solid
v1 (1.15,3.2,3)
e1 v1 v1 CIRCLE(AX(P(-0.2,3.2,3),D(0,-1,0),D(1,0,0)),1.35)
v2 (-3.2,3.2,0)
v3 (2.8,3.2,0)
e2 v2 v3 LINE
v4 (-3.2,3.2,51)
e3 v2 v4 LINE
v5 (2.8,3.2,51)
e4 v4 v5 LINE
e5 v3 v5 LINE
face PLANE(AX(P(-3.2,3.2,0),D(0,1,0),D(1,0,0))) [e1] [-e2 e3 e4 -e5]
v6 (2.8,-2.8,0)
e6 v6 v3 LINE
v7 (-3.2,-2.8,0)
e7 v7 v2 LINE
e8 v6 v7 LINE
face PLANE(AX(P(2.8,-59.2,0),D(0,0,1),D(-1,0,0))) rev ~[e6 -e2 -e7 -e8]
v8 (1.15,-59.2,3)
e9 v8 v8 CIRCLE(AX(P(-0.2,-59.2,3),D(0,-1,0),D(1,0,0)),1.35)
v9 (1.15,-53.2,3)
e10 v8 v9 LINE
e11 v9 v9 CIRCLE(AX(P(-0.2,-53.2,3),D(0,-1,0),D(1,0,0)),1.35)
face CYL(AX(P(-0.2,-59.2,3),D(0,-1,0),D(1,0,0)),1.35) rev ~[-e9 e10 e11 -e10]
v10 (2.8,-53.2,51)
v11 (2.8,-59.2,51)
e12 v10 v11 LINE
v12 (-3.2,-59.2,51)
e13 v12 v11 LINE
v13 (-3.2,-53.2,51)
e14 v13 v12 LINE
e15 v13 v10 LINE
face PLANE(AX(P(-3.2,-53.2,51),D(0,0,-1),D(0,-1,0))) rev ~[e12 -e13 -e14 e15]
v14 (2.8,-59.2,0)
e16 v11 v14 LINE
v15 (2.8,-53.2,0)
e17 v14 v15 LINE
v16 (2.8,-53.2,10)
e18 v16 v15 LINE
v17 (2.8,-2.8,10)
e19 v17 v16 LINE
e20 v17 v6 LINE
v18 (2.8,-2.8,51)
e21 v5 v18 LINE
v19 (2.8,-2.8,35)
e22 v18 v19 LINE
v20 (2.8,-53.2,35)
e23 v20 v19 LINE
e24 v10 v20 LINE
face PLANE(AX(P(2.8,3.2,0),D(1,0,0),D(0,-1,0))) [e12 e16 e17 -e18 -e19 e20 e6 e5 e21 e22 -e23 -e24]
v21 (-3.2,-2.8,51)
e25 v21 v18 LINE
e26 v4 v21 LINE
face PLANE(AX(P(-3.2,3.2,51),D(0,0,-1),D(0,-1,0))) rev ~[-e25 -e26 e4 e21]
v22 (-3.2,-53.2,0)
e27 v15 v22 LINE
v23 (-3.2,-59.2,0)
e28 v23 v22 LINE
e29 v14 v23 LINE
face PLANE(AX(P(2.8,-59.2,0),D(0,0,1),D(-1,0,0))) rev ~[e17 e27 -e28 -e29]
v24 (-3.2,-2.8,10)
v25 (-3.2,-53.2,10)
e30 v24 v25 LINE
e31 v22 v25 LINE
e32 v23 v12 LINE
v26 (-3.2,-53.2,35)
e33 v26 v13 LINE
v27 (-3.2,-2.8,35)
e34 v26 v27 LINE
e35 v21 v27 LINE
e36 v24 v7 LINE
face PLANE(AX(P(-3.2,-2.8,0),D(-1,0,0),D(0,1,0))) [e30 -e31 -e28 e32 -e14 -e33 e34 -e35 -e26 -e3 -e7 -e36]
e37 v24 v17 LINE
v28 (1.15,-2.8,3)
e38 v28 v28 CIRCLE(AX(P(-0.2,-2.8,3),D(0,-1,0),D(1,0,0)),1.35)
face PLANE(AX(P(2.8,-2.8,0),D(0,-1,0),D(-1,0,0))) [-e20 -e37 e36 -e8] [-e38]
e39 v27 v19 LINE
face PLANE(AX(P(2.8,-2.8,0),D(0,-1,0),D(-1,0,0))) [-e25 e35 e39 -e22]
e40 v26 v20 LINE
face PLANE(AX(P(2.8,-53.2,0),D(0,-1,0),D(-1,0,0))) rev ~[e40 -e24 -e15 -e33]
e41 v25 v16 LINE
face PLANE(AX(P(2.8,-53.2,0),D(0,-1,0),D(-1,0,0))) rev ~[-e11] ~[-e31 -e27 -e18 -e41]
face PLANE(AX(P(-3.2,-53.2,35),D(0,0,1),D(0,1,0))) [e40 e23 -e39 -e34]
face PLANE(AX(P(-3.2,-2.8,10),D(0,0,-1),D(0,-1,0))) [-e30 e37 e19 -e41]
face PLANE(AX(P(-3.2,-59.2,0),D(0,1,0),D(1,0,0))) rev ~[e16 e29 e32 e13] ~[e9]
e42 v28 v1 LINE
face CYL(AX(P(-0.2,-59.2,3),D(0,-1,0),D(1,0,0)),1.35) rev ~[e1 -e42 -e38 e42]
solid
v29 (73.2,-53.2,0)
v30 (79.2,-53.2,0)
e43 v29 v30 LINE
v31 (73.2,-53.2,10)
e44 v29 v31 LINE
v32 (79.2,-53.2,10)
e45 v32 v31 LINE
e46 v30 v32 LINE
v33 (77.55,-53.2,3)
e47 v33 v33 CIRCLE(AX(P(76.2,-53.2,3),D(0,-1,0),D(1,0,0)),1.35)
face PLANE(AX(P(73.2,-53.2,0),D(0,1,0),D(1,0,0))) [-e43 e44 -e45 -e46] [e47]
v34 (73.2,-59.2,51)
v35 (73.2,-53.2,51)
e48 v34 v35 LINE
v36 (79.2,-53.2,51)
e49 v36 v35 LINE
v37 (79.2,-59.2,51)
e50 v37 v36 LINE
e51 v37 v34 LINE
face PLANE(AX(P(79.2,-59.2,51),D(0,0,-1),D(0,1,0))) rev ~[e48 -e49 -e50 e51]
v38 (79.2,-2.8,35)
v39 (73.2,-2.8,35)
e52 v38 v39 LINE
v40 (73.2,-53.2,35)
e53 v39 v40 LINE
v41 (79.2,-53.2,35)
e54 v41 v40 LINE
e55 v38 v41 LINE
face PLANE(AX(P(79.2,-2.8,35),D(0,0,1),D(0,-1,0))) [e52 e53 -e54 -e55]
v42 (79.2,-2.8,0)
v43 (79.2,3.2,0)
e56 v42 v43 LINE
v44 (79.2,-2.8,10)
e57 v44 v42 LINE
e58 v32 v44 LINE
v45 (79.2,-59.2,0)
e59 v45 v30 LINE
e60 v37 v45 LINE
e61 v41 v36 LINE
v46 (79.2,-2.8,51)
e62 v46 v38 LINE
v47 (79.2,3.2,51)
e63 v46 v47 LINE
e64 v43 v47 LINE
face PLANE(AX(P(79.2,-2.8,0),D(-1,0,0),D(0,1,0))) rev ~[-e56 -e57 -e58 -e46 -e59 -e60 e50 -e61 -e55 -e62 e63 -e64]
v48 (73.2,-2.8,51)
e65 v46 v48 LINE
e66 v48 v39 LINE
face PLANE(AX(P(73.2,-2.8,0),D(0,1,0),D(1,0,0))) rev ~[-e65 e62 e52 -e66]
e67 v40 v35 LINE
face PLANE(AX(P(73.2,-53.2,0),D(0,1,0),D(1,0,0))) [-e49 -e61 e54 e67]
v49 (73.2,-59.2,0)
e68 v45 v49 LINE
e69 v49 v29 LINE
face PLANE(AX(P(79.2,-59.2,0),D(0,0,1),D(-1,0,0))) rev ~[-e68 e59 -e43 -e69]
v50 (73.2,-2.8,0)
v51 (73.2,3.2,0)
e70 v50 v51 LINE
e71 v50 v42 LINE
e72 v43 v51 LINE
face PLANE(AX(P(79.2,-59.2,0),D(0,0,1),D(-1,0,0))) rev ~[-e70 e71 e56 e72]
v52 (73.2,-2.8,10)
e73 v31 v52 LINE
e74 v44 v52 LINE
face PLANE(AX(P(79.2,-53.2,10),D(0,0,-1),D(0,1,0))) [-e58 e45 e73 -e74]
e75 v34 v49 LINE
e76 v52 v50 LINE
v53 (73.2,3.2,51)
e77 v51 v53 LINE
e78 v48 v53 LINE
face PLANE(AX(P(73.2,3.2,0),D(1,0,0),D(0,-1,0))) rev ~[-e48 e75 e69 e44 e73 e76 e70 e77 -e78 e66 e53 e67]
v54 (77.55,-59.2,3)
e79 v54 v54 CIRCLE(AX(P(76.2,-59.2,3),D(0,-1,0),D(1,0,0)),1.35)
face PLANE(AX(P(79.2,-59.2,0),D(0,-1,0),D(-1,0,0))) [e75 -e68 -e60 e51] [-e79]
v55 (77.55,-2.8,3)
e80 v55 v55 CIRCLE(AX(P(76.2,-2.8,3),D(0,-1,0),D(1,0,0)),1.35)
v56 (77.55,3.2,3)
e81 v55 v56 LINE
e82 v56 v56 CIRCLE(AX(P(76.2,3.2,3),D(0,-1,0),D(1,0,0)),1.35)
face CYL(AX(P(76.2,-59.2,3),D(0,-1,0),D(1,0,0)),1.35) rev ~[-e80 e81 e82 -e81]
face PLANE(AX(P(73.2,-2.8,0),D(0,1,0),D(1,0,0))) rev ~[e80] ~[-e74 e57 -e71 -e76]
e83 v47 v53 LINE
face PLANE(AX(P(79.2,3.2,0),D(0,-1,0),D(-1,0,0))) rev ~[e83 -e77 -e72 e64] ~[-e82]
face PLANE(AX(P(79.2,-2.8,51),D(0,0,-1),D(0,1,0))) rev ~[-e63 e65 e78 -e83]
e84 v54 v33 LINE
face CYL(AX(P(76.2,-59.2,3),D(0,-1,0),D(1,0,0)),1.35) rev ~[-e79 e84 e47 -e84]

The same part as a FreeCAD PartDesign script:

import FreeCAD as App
import Part
import Sketcher


def add_polygon(sketch, points):
    """Adds a closed chain of lines whose ends are joined by coincident constraints."""
    first, n = sketch.GeometryCount, len(points)
    for a, b in zip(points, points[1:] + points[:1]):
        sketch.addGeometry(Part.LineSegment(App.Vector(*a, 0), App.Vector(*b, 0)), False)
    for i in range(n):
        sketch.addConstraint(Sketcher.Constraint("Coincident", first + i, 2, first + (i + 1) % n, 1))

doc = App.newDocument("Part")
body = doc.addObject("PartDesign::Body", "Body")
body.AllowCompound = True

# Sketch on XY plane
sketch1 = body.newObject("Sketcher::SketchObject", "Sketch")
sketch1.AttachmentSupport = (doc.getObject("XY_Plane"), [""])
sketch1.MapMode = "FlatFace"
add_polygon(sketch1, [(79, -3), (79, 3), (73, 3), (73, -3)])  # lines 0-3
add_polygon(sketch1, [(3, -3), (3, 3), (-3, 3), (-3, -3)])  # lines 4-7
add_polygon(sketch1, [(79, -59), (79, -53), (73, -53), (73, -59)])  # lines 8-11
add_polygon(sketch1, [(3, -53), (-3, -53), (-3, -59), (3, -59)])  # lines 12-15
sketch1.addConstraint(Sketcher.Constraint("Vertical", 0))
sketch1.addConstraint(Sketcher.Constraint("Horizontal", 1))
sketch1.addConstraint(Sketcher.Constraint("Vertical", 2))
sketch1.addConstraint(Sketcher.Constraint("Horizontal", 3))
sketch1.addConstraint(Sketcher.Constraint("Vertical", 4))
sketch1.addConstraint(Sketcher.Constraint("Horizontal", 5))
sketch1.addConstraint(Sketcher.Constraint("Vertical", 6))
sketch1.addConstraint(Sketcher.Constraint("Horizontal", 7))
sketch1.addConstraint(Sketcher.Constraint("Vertical", 8))
sketch1.addConstraint(Sketcher.Constraint("Horizontal", 9))
sketch1.addConstraint(Sketcher.Constraint("Vertical", 10))
sketch1.addConstraint(Sketcher.Constraint("Horizontal", 11))
sketch1.addConstraint(Sketcher.Constraint("Horizontal", 12))
sketch1.addConstraint(Sketcher.Constraint("Vertical", 13))
sketch1.addConstraint(Sketcher.Constraint("Horizontal", 14))
sketch1.addConstraint(Sketcher.Constraint("Vertical", 15))
sketch1.addConstraint(Sketcher.Constraint("Horizontal", 1, 2, 4, 2))
sketch1.addConstraint(Sketcher.Constraint("Horizontal", 3, 2, 6, 2))
sketch1.addConstraint(Sketcher.Constraint("Horizontal", 9, 2, 12, 2))
sketch1.addConstraint(Sketcher.Constraint("Horizontal", 11, 2, 13, 2))
sketch1.addConstraint(Sketcher.Constraint("Vertical", 3, 2, 8, 2))
sketch1.addConstraint(Sketcher.Constraint("Vertical", 2, 2, 9, 2))
sketch1.addConstraint(Sketcher.Constraint("Vertical", 6, 2, 12, 2))
sketch1.addConstraint(Sketcher.Constraint("Vertical", 7, 2, 14, 2))
sketch1.addConstraint(Sketcher.Constraint("Equal", 3, 5))
sketch1.addConstraint(Sketcher.Constraint("Equal", 14, 0))
sketch1.addConstraint(Sketcher.Constraint("Equal", 6, 8))
sketch1.addConstraint(Sketcher.Constraint("DistanceX", 1, 2, 1, 1, 6.0))
sketch1.addConstraint(Sketcher.Constraint("DistanceX", -1, 1, 0, 2, 79.2))
sketch1.addConstraint(Sketcher.Constraint("DistanceY", -1, 1, 0, 2, 3.2))
sketch1.addConstraint(Sketcher.Constraint("DistanceX", -1, 1, 4, 2, 2.8))
sketch1.addConstraint(Sketcher.Constraint("DistanceY", 8, 2, -1, 1, 53.2))
pad1 = body.newObject("PartDesign::Pad", "Pad")
pad1.Profile = sketch1
pad1.Length = 45

# Sketch on YZ plane
sketch2 = body.newObject("Sketcher::SketchObject", "Sketch001")
sketch2.AttachmentSupport = (doc.getObject("YZ_Plane"), [""])
sketch2.MapMode = "FlatFace"
sketch2.AttachmentOffset = App.Placement(App.Vector(0, 0, 79.2), App.Rotation())
add_polygon(sketch2, [(-59, 51), (-59, 45), (-53, 45), (-53, 51)])  # lines 0-3
add_polygon(sketch2, [(-3, 51), (-3, 45), (3, 45), (3, 51)])  # lines 4-7
add_polygon(sketch2, [(-3, 0), (-3, -6), (3, -6), (3, 0)])  # lines 8-11
add_polygon(sketch2, [(-53, -6), (-53, 0), (-59, 0), (-59, -6)])  # lines 12-15
sketch2.addConstraint(Sketcher.Constraint("Vertical", 0))
sketch2.addConstraint(Sketcher.Constraint("Horizontal", 1))
sketch2.addConstraint(Sketcher.Constraint("Vertical", 2))
sketch2.addConstraint(Sketcher.Constraint("Horizontal", 3))
sketch2.addConstraint(Sketcher.Constraint("Vertical", 4))
sketch2.addConstraint(Sketcher.Constraint("Horizontal", 5))
sketch2.addConstraint(Sketcher.Constraint("Vertical", 6))
sketch2.addConstraint(Sketcher.Constraint("Horizontal", 7))
sketch2.addConstraint(Sketcher.Constraint("Vertical", 8))
sketch2.addConstraint(Sketcher.Constraint("Horizontal", 9))
sketch2.addConstraint(Sketcher.Constraint("Vertical", 10))
sketch2.addConstraint(Sketcher.Constraint("Horizontal", 11))
sketch2.addConstraint(Sketcher.Constraint("Vertical", 12))
sketch2.addConstraint(Sketcher.Constraint("Horizontal", 13))
sketch2.addConstraint(Sketcher.Constraint("Vertical", 14))
sketch2.addConstraint(Sketcher.Constraint("Horizontal", 15))
sketch2.addConstraint(Sketcher.Constraint("PointOnObject", 10, 2, -1))
sketch2.addConstraint(Sketcher.Constraint("PointOnObject", 12, 2, -1))
sketch2.addConstraint(Sketcher.Constraint("Horizontal", 1, 2, 4, 2))
sketch2.addConstraint(Sketcher.Constraint("Horizontal", 3, 2, 6, 2))
sketch2.addConstraint(Sketcher.Constraint("Horizontal", 9, 2, 14, 2))
sketch2.addConstraint(Sketcher.Constraint("Vertical", 7, 2, 8, 2))
sketch2.addConstraint(Sketcher.Constraint("Vertical", 6, 2, 9, 2))
sketch2.addConstraint(Sketcher.Constraint("Vertical", 2, 2, 12, 2))
sketch2.addConstraint(Sketcher.Constraint("Vertical", 3, 2, 13, 2))
sketch2.addConstraint(Sketcher.Constraint("Equal", 3, 5))
sketch2.addConstraint(Sketcher.Constraint("Equal", 15, 0))
sketch2.addConstraint(Sketcher.Constraint("Equal", 6, 8))
sketch2.addConstraint(Sketcher.Constraint("DistanceX", 1, 1, 1, 2, 6.0))
sketch2.addConstraint(Sketcher.Constraint("DistanceY", -1, 1, 0, 2, 45.0))
sketch2.addConstraint(Sketcher.Constraint("DistanceX", 0, 2, -1, 1, 59.2))
sketch2.addConstraint(Sketcher.Constraint("DistanceX", 4, 2, -1, 1, 2.8))
pad2 = body.newObject("PartDesign::Pad", "Pad001")
pad2.Profile = sketch2
pad2.Length = 6
pad2.Reversed = True

# Sketch on YZ plane
sketch3 = body.newObject("Sketcher::SketchObject", "Sketch002")
sketch3.AttachmentSupport = (doc.getObject("YZ_Plane"), [""])
sketch3.MapMode = "FlatFace"
sketch3.AttachmentOffset = App.Placement(App.Vector(0, 0, -3.2), App.Rotation())
add_polygon(sketch3, [(3, 51), (3, 45), (-3, 45), (-3, 51)])  # lines 0-3
add_polygon(sketch3, [(-53, 51), (-53, 45), (-59, 45), (-59, 51)])  # lines 4-7
add_polygon(sketch3, [(-53, 0), (-53, -6), (-59, -6), (-59, 0)])  # lines 8-11
add_polygon(sketch3, [(3, 0), (3, -6), (-3, -6), (-3, 0)])  # lines 12-15
sketch3.addConstraint(Sketcher.Constraint("Vertical", 0))
sketch3.addConstraint(Sketcher.Constraint("Horizontal", 1))
sketch3.addConstraint(Sketcher.Constraint("Vertical", 2))
sketch3.addConstraint(Sketcher.Constraint("Horizontal", 3))
sketch3.addConstraint(Sketcher.Constraint("Vertical", 4))
sketch3.addConstraint(Sketcher.Constraint("Horizontal", 5))
sketch3.addConstraint(Sketcher.Constraint("Vertical", 6))
sketch3.addConstraint(Sketcher.Constraint("Horizontal", 7))
sketch3.addConstraint(Sketcher.Constraint("Vertical", 8))
sketch3.addConstraint(Sketcher.Constraint("Horizontal", 9))
sketch3.addConstraint(Sketcher.Constraint("Vertical", 10))
sketch3.addConstraint(Sketcher.Constraint("Horizontal", 11))
sketch3.addConstraint(Sketcher.Constraint("Vertical", 12))
sketch3.addConstraint(Sketcher.Constraint("Horizontal", 13))
sketch3.addConstraint(Sketcher.Constraint("Vertical", 14))
sketch3.addConstraint(Sketcher.Constraint("Horizontal", 15))
sketch3.addConstraint(Sketcher.Constraint("PointOnObject", 10, 2, -1))
sketch3.addConstraint(Sketcher.Constraint("PointOnObject", 14, 2, -1))
sketch3.addConstraint(Sketcher.Constraint("Horizontal", 1, 2, 4, 2))
sketch3.addConstraint(Sketcher.Constraint("Horizontal", 3, 2, 6, 2))
sketch3.addConstraint(Sketcher.Constraint("Horizontal", 9, 2, 12, 2))
sketch3.addConstraint(Sketcher.Constraint("Vertical", 7, 2, 8, 2))
sketch3.addConstraint(Sketcher.Constraint("Vertical", 6, 2, 9, 2))
sketch3.addConstraint(Sketcher.Constraint("Vertical", 3, 2, 12, 2))
sketch3.addConstraint(Sketcher.Constraint("Vertical", 2, 2, 13, 2))
sketch3.addConstraint(Sketcher.Constraint("Equal", 3, 5))
sketch3.addConstraint(Sketcher.Constraint("Equal", 15, 0))
sketch3.addConstraint(Sketcher.Constraint("Equal", 6, 8))
sketch3.addConstraint(Sketcher.Constraint("DistanceX", 1, 2, 1, 1, 6.0))
sketch3.addConstraint(Sketcher.Constraint("DistanceY", -1, 1, 0, 2, 45.0))
sketch3.addConstraint(Sketcher.Constraint("DistanceX", -1, 1, 0, 2, 3.2))
sketch3.addConstraint(Sketcher.Constraint("DistanceX", 4, 2, -1, 1, 53.2))
pad3 = body.newObject("PartDesign::Pad", "Pad002")
pad3.Profile = sketch3
pad3.Length = 6

# Sketch on YZ plane
sketch4 = body.newObject("Sketcher::SketchObject", "Sketch003")
sketch4.AttachmentSupport = (doc.getObject("YZ_Plane"), [""])
sketch4.MapMode = "FlatFace"
sketch4.AttachmentOffset = App.Placement(App.Vector(0, 0, -3.2), App.Rotation())
add_polygon(sketch4, [(-3, 35), (-3, 10), (-53, 10), (-53, 35)])  # lines 0-3
sketch4.addConstraint(Sketcher.Constraint("Vertical", 0))
sketch4.addConstraint(Sketcher.Constraint("Horizontal", 1))
sketch4.addConstraint(Sketcher.Constraint("Vertical", 2))
sketch4.addConstraint(Sketcher.Constraint("Horizontal", 3))
sketch4.addConstraint(Sketcher.Constraint("DistanceY", 0, 2, 0, 1, 25.0))
sketch4.addConstraint(Sketcher.Constraint("DistanceX", 1, 2, 1, 1, 50.4))
sketch4.addConstraint(Sketcher.Constraint("DistanceY", -1, 1, 0, 2, 10.0))
sketch4.addConstraint(Sketcher.Constraint("DistanceX", 0, 2, -1, 1, 2.8))
pad4 = body.newObject("PartDesign::Pad", "Pad003")
pad4.Profile = sketch4
pad4.Length = 6

# Sketch on YZ plane
sketch5 = body.newObject("Sketcher::SketchObject", "Sketch004")
sketch5.AttachmentSupport = (doc.getObject("YZ_Plane"), [""])
sketch5.MapMode = "FlatFace"
sketch5.AttachmentOffset = App.Placement(App.Vector(0, 0, 79.2), App.Rotation())
add_polygon(sketch5, [(-53, 35), (-53, 10), (-3, 10), (-3, 35)])  # lines 0-3
sketch5.addConstraint(Sketcher.Constraint("Vertical", 0))
sketch5.addConstraint(Sketcher.Constraint("Horizontal", 1))
sketch5.addConstraint(Sketcher.Constraint("Vertical", 2))
sketch5.addConstraint(Sketcher.Constraint("Horizontal", 3))
sketch5.addConstraint(Sketcher.Constraint("DistanceY", 0, 2, 0, 1, 25.0))
sketch5.addConstraint(Sketcher.Constraint("DistanceX", 1, 1, 1, 2, 50.4))
sketch5.addConstraint(Sketcher.Constraint("DistanceY", -1, 1, 0, 2, 10.0))
sketch5.addConstraint(Sketcher.Constraint("DistanceX", 0, 2, -1, 1, 53.2))
pad5 = body.newObject("PartDesign::Pad", "Pad004")
pad5.Profile = sketch5
pad5.Length = 6
pad5.Reversed = True

# Sketch on XZ plane
sketch6 = body.newObject("Sketcher::SketchObject", "Sketch005")
sketch6.AttachmentSupport = (doc.getObject("XZ_Plane"), [""])
sketch6.MapMode = "FlatFace"
sketch6.AttachmentOffset = App.Placement(App.Vector(0, 0, 59.2), App.Rotation())
sketch6.addGeometry(Part.Circle(App.Vector(-0.2, -3, 0), App.Vector(0, 0, 1), 1.3), False)
sketch6.addGeometry(Part.Circle(App.Vector(76.2, -3, 0), App.Vector(0, 0, 1), 1.3), False)
sketch6.addConstraint(Sketcher.Constraint("Equal", 0, 1))
sketch6.addConstraint(Sketcher.Constraint("Horizontal", 0, 3, 1, 3))
sketch6.addConstraint(Sketcher.Constraint("Diameter", 0, 2.6))
sketch6.addConstraint(Sketcher.Constraint("DistanceY", 0, 3, -1, 1, 3.0))
sketch6.addConstraint(Sketcher.Constraint("DistanceX", 0, 3, -1, 1, 0.2))
sketch6.addConstraint(Sketcher.Constraint("DistanceX", -1, 1, 1, 3, 76.2))
pocket1 = body.newObject("PartDesign::Pocket", "Pocket")
pocket1.Profile = sketch6
pocket1.Length = 6

# Sketch on XZ plane
sketch7 = body.newObject("Sketcher::SketchObject", "Sketch006")
sketch7.AttachmentSupport = (doc.getObject("XZ_Plane"), [""])
sketch7.MapMode = "FlatFace"
sketch7.AttachmentOffset = App.Placement(App.Vector(0, 0, 59.2), App.Rotation())
add_polygon(sketch7, [(-3, 0), (-3, -6), (3, -6), (3, 0)])  # lines 0-3
add_polygon(sketch7, [(73, -6), (79, -6), (79, 0), (73, 0)])  # lines 4-7
sketch7.addConstraint(Sketcher.Constraint("Vertical", 0))
sketch7.addConstraint(Sketcher.Constraint("Horizontal", 1))
sketch7.addConstraint(Sketcher.Constraint("Vertical", 2))
sketch7.addConstraint(Sketcher.Constraint("Horizontal", 3))
sketch7.addConstraint(Sketcher.Constraint("Horizontal", 4))
sketch7.addConstraint(Sketcher.Constraint("Vertical", 5))
sketch7.addConstraint(Sketcher.Constraint("Horizontal", 6))
sketch7.addConstraint(Sketcher.Constraint("Vertical", 7))
sketch7.addConstraint(Sketcher.Constraint("PointOnObject", 2, 2, -1))
sketch7.addConstraint(Sketcher.Constraint("PointOnObject", 5, 2, -1))
sketch7.addConstraint(Sketcher.Constraint("Horizontal", 1, 2, 4, 2))
sketch7.addConstraint(Sketcher.Constraint("Equal", 3, 4))
sketch7.addConstraint(Sketcher.Constraint("Equal", 6, 0))
sketch7.addConstraint(Sketcher.Constraint("DistanceX", 1, 1, 1, 2, 6.0))
sketch7.addConstraint(Sketcher.Constraint("DistanceX", 0, 2, -1, 1, 3.2))
sketch7.addConstraint(Sketcher.Constraint("DistanceX", -1, 1, 4, 2, 79.2))
pocket2 = body.newObject("PartDesign::Pocket", "Pocket001")
pocket2.Profile = sketch7
pocket2.Type = "ThroughAll"

# Sketch on XZ plane
sketch8 = body.newObject("Sketcher::SketchObject", "Sketch007")
sketch8.AttachmentSupport = (doc.getObject("XZ_Plane"), [""])
sketch8.MapMode = "FlatFace"
sketch8.AttachmentOffset = App.Placement(App.Vector(0, 0, 59.2), App.Rotation())
sketch8.addGeometry(Part.Circle(App.Vector(-0.2, 3, 0), App.Vector(0, 0, 1), 1.4), False)
sketch8.addGeometry(Part.Circle(App.Vector(76.2, 3, 0), App.Vector(0, 0, 1), 1.4), False)
sketch8.addConstraint(Sketcher.Constraint("Equal", 0, 1))
sketch8.addConstraint(Sketcher.Constraint("Horizontal", 0, 3, 1, 3))
sketch8.addConstraint(Sketcher.Constraint("Diameter", 0, 2.7))
sketch8.addConstraint(Sketcher.Constraint("DistanceY", -1, 1, 0, 3, 3.0))
sketch8.addConstraint(Sketcher.Constraint("DistanceX", 0, 3, -1, 1, 0.2))
sketch8.addConstraint(Sketcher.Constraint("DistanceX", -1, 1, 1, 3, 76.2))
pocket3 = body.newObject("PartDesign::Pocket", "Pocket002")
pocket3.Profile = sketch8
pocket3.Type = "ThroughAll"

doc.recompute()
